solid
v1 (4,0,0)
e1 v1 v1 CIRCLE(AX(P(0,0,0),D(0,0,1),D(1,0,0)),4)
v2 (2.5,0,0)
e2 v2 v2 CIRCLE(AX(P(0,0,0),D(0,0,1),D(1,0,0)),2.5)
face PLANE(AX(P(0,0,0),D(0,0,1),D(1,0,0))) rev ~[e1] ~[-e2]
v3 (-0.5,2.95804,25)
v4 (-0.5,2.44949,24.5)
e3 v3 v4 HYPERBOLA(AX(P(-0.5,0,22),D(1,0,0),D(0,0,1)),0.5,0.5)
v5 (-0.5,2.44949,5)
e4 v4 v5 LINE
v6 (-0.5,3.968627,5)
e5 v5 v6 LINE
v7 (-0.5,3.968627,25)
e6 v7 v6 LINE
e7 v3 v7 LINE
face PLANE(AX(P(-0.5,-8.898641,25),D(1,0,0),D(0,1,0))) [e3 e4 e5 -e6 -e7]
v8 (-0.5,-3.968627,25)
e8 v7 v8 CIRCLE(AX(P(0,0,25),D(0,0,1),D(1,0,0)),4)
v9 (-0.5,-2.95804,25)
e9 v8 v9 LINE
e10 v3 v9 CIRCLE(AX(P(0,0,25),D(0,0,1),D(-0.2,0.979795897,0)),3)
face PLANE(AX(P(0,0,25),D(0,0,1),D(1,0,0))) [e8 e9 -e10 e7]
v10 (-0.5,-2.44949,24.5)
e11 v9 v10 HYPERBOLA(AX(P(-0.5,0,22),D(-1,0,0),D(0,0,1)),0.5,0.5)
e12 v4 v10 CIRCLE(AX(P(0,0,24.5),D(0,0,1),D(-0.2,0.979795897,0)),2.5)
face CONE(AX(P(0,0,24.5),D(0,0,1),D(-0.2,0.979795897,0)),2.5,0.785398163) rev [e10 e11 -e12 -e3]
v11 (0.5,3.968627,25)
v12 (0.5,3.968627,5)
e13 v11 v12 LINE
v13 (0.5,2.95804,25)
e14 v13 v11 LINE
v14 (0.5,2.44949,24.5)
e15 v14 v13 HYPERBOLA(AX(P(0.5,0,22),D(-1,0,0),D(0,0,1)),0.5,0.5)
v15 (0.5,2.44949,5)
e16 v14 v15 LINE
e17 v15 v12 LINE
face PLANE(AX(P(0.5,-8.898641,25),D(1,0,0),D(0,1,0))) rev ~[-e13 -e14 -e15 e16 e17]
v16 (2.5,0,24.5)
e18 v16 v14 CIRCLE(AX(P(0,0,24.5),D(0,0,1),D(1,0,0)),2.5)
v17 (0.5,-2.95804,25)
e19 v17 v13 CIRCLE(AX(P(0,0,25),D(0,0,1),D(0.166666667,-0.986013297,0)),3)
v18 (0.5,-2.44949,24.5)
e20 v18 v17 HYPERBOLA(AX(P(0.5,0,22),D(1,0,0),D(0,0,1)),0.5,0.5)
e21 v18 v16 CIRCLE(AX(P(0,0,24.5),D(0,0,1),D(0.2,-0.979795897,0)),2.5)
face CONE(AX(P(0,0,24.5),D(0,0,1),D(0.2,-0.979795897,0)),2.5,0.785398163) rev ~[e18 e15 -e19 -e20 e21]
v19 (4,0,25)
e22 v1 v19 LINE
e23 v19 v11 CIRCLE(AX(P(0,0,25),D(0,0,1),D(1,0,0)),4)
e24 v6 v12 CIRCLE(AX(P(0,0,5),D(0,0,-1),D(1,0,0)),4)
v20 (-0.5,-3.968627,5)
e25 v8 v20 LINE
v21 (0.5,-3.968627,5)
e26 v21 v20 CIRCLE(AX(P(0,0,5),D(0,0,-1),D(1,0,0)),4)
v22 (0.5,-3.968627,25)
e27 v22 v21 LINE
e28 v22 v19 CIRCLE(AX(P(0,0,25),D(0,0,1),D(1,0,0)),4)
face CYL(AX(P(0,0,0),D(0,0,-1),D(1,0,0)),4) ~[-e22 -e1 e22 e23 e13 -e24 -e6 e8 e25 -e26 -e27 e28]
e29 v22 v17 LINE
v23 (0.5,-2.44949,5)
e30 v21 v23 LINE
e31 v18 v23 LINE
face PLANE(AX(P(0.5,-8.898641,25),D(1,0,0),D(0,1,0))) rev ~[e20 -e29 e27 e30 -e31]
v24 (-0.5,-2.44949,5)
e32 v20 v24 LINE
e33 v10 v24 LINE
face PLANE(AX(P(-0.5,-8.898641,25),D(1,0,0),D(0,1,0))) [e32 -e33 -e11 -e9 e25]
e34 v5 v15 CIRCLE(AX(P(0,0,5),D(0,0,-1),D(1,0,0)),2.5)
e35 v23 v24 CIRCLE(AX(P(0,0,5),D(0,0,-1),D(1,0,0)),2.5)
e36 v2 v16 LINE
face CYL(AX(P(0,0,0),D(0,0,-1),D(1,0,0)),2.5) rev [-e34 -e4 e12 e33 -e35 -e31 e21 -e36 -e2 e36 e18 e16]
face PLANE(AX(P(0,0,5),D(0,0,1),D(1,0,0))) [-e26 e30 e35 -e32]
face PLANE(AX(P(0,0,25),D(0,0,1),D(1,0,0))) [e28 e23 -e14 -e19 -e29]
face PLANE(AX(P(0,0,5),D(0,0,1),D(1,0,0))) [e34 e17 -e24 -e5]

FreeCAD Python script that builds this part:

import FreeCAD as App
import Part
import Sketcher

V = App.Vector
Q = App.Units.Quantity


def edges_at(feature, points):
    """Names of the edges that pass closest to the given points."""
    edges = feature.Shape.Edges
    near = lambda p: min(range(len(edges)), key=lambda i: edges[i].distToShape(Part.Vertex(*p))[0])
    return sorted({f"Edge{near(p) + 1}" for p in points})

doc = App.newDocument("Part")
body = doc.addObject("PartDesign::Body", "Body")

# Sketch on XY plane
sketch1 = body.newObject("Sketcher::SketchObject", "Sketch")
sketch1.AttachmentSupport = (doc.getObject("XY_Plane"), [""])
sketch1.MapMode = "FlatFace"
sketch1.addGeometry(Part.Circle(V(0, 0, 0), V(0, 0, 1), 4), False)
sketch1.addGeometry(Part.Circle(V(0, 0, 0), V(0, 0, 1), 2.5), False)
sketch1.addConstraint(Sketcher.Constraint("Coincident", 0, 3, -1, 1))
sketch1.addConstraint(Sketcher.Constraint("Coincident", 1, 3, -1, 1))
sketch1.addConstraint(Sketcher.Constraint("Diameter", 0, Q("8 mm")))
sketch1.addConstraint(Sketcher.Constraint("Diameter", 1, Q("5 mm")))
pad1 = body.newObject("PartDesign::Pad", "Pad")
pad1.Profile = sketch1
pad1.Length = 25

# Sketch on XY plane
sketch2 = body.newObject("Sketcher::SketchObject", "Sketch001")
sketch2.AttachmentSupport = (doc.getObject("XY_Plane"), [""])
sketch2.MapMode = "FlatFace"
sketch2.AttachmentOffset = App.Placement(V(0, 0, 25), App.Rotation())
sketch2.addGeometry(Part.LineSegment(V(-0.5, 8.9, 0), V(-0.5, -8.9, 0)), False)
sketch2.addGeometry(Part.LineSegment(V(-0.5, -8.9, 0), V(0.5, -8.9, 0)), False)
sketch2.addGeometry(Part.LineSegment(V(0.5, -8.9, 0), V(0.5, 8.9, 0)), False)
sketch2.addGeometry(Part.LineSegment(V(0.5, 8.9, 0), V(-0.5, 8.9, 0)), False)
sketch2.addConstraint(Sketcher.Constraint("Coincident", 0, 2, 1, 1))
sketch2.addConstraint(Sketcher.Constraint("Coincident", 1, 2, 2, 1))
sketch2.addConstraint(Sketcher.Constraint("Coincident", 2, 2, 3, 1))
sketch2.addConstraint(Sketcher.Constraint("Coincident", 3, 2, 0, 1))
sketch2.addConstraint(Sketcher.Constraint("Vertical", 0))
sketch2.addConstraint(Sketcher.Constraint("Horizontal", 1))
sketch2.addConstraint(Sketcher.Constraint("Vertical", 2))
sketch2.addConstraint(Sketcher.Constraint("Horizontal", 3))
sketch2.addConstraint(Sketcher.Constraint("Symmetric", 0, 2, 2, 2, -1, 1))
sketch2.addConstraint(Sketcher.Constraint("DistanceX", 1, 1, 1, 2, Q("1 mm")))
sketch2.addConstraint(Sketcher.Constraint("DistanceY", 0, 2, 0, 1, Q("17.797282 mm")))
pocket1 = body.newObject("PartDesign::Pocket", "Pocket")
pocket1.Profile = sketch2
pocket1.Length = 20
doc.recompute()

chamfer = body.newObject("PartDesign::Chamfer", "Chamfer")
chamfer.Base = (pocket1, edges_at(pocket1, [(-2.5, 0, 25)]))
chamfer.Size = 0.5
doc.recompute()

chamfer2 = body.newObject("PartDesign::Chamfer", "Chamfer001")
chamfer2.Base = (chamfer, edges_at(chamfer, [(1.936, 1.581, 25), (1.936, -1.581, 25)]))
chamfer2.Size = 0.5

doc.recompute()
